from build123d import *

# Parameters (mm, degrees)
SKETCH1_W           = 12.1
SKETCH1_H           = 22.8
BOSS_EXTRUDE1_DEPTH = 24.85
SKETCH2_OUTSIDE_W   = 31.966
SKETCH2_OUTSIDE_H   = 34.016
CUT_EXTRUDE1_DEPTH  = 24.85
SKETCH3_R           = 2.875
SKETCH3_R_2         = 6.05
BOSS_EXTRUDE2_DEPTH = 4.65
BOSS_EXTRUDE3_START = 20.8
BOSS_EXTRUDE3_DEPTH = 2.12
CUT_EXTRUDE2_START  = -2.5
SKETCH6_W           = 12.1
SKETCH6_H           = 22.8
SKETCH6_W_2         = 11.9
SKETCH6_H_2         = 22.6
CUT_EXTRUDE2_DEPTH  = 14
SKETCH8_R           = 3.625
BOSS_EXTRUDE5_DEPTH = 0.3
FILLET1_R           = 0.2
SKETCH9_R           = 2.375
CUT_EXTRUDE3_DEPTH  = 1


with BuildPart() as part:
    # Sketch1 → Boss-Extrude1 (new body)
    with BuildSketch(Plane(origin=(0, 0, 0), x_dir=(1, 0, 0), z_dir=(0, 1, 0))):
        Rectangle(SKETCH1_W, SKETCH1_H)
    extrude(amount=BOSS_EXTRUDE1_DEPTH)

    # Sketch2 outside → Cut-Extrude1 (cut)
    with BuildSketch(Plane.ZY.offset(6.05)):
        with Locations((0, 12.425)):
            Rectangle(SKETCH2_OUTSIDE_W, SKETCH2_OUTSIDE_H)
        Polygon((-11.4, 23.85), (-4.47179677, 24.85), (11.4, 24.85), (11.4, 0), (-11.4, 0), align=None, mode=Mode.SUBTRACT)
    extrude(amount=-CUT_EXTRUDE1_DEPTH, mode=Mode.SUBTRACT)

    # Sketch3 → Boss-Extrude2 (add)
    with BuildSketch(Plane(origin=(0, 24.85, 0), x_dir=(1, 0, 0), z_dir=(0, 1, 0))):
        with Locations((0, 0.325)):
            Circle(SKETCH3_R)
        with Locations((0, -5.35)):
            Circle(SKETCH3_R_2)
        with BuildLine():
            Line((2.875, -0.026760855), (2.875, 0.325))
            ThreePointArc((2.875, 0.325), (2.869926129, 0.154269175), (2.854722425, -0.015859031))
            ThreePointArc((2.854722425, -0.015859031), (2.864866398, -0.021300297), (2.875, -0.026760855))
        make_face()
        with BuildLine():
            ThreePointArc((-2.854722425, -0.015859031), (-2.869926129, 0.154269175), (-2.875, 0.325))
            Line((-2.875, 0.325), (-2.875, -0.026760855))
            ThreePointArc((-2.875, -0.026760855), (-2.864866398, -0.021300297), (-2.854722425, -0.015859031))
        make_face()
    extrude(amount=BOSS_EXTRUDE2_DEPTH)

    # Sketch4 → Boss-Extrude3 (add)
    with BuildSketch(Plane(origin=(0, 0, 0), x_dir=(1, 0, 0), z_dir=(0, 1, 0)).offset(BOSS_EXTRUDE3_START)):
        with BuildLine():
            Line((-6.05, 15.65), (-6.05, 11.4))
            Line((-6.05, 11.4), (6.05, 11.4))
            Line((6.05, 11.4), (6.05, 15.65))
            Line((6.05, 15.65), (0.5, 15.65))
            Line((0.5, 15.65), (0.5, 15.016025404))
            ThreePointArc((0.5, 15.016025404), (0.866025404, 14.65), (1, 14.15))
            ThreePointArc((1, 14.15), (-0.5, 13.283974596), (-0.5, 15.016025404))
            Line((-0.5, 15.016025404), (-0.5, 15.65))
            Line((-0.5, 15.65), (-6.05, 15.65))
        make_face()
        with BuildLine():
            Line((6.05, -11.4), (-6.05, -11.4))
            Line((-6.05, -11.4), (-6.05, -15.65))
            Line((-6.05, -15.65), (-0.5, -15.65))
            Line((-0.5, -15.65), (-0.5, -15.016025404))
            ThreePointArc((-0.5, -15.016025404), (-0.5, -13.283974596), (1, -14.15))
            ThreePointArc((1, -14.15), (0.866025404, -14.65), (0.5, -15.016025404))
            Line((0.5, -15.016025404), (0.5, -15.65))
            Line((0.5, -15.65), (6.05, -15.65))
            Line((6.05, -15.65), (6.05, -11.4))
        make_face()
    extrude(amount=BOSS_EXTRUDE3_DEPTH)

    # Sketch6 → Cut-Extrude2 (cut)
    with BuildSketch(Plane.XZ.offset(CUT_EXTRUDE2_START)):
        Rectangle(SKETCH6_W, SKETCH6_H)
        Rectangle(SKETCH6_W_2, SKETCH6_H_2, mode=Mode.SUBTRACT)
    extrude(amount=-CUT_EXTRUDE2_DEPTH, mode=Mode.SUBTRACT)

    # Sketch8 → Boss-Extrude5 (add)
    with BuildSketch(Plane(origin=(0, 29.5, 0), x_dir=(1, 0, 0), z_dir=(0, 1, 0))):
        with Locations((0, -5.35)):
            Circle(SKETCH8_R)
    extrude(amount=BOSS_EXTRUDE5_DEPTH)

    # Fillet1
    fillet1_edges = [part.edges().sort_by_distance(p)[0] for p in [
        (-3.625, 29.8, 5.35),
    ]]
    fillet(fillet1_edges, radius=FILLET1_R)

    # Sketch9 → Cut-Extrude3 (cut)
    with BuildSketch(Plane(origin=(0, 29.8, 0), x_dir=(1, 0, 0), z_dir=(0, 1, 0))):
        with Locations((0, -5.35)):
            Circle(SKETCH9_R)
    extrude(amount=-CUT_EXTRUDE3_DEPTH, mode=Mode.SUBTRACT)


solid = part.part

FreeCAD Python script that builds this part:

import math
import FreeCAD as App
import Part
import Sketcher
from FreeCAD import Vector
Q = App.Units.Quantity


def edges_at(feature, points):
    """Names of the edges that pass closest to the given points."""
    edges = feature.Shape.Edges
    near = lambda p: min(range(len(edges)), key=lambda i: edges[i].distToShape(Part.Vertex(*p))[0])
    return sorted({f"Edge{near(p) + 1}" for p in points})

doc = App.newDocument("Part")
body = doc.addObject("PartDesign::Body", "Body")

# Sketch on XZ plane
sketch1 = body.newObject("Sketcher::SketchObject", "Sketch")
sketch1.AttachmentSupport = (doc.getObject("XZ_Plane"), [""])
sketch1.MapMode = "FlatFace"
sketch1.addGeometry(Part.LineSegment(Vector(-6, -11, 0), Vector(-6, 11, 0)), False)
sketch1.addGeometry(Part.LineSegment(Vector(-6, 11, 0), Vector(6, 11, 0)), False)
sketch1.addGeometry(Part.LineSegment(Vector(6, 11, 0), Vector(6, -11, 0)), False)
sketch1.addGeometry(Part.LineSegment(Vector(6, -11, 0), Vector(-6, -11, 0)), False)
sketch1.addConstraint(Sketcher.Constraint("Coincident", 0, 2, 1, 1))
sketch1.addConstraint(Sketcher.Constraint("Coincident", 1, 2, 2, 1))
sketch1.addConstraint(Sketcher.Constraint("Coincident", 2, 2, 3, 1))
sketch1.addConstraint(Sketcher.Constraint("Coincident", 3, 2, 0, 1))
sketch1.addConstraint(Sketcher.Constraint("Vertical", 0))
sketch1.addConstraint(Sketcher.Constraint("Horizontal", 1))
sketch1.addConstraint(Sketcher.Constraint("Vertical", 2))
sketch1.addConstraint(Sketcher.Constraint("Horizontal", 3))
sketch1.addConstraint(Sketcher.Constraint("Symmetric", 0, 2, 2, 2, -1, 1))
sketch1.addConstraint(Sketcher.Constraint("DistanceX", 1, 1, 1, 2, Q("12.1 mm")))
sketch1.addConstraint(Sketcher.Constraint("DistanceY", 0, 1, 0, 2, Q("22.8 mm")))
pad1 = body.newObject("PartDesign::Pad", "Pad")
pad1.Profile = sketch1
pad1.Length = 24.85
pad1.Reversed = True

# Sketch on YZ plane
sketch2 = body.newObject("Sketcher::SketchObject", "Sketch001")
sketch2.AttachmentSupport = (doc.getObject("YZ_Plane"), [""])
sketch2.MapMode = "FlatFace"
sketch2.AttachmentOffset = App.Placement(Vector(0, 0, -6.05), App.Rotation())
sketch2.addGeometry(Part.LineSegment(Vector(29, -16, 0), Vector(-5, -16, 0)), False)
sketch2.addGeometry(Part.LineSegment(Vector(-5, -16, 0), Vector(-5, 16, 0)), False)
sketch2.addGeometry(Part.LineSegment(Vector(-5, 16, 0), Vector(29, 16, 0)), False)
sketch2.addGeometry(Part.LineSegment(Vector(29, 16, 0), Vector(29, -16, 0)), False)
sketch2.addGeometry(Part.LineSegment(Vector(0, -11, 0), Vector(24, -11, 0)), False)
sketch2.addGeometry(Part.LineSegment(Vector(24, -11, 0), Vector(25, -4, 0)), False)
sketch2.addGeometry(Part.LineSegment(Vector(25, -4, 0), Vector(25, 11, 0)), False)
sketch2.addGeometry(Part.LineSegment(Vector(25, 11, 0), Vector(0, 11, 0)), False)
sketch2.addGeometry(Part.LineSegment(Vector(0, 11, 0), Vector(0, -11, 0)), False)
sketch2.addConstraint(Sketcher.Constraint("Coincident", 0, 2, 1, 1))
sketch2.addConstraint(Sketcher.Constraint("Coincident", 1, 2, 2, 1))
sketch2.addConstraint(Sketcher.Constraint("Coincident", 2, 2, 3, 1))
sketch2.addConstraint(Sketcher.Constraint("Coincident", 3, 2, 0, 1))
sketch2.addConstraint(Sketcher.Constraint("Coincident", 4, 2, 5, 1))
sketch2.addConstraint(Sketcher.Constraint("Coincident", 5, 2, 6, 1))
sketch2.addConstraint(Sketcher.Constraint("Coincident", 6, 2, 7, 1))
sketch2.addConstraint(Sketcher.Constraint("Coincident", 7, 2, 8, 1))
sketch2.addConstraint(Sketcher.Constraint("Coincident", 8, 2, 4, 1))
sketch2.addConstraint(Sketcher.Constraint("Horizontal", 0))
sketch2.addConstraint(Sketcher.Constraint("Vertical", 1))
sketch2.addConstraint(Sketcher.Constraint("Horizontal", 2))
sketch2.addConstraint(Sketcher.Constraint("Vertical", 3))
sketch2.addConstraint(Sketcher.Constraint("Horizontal", 4))
sketch2.addConstraint(Sketcher.Constraint("Vertical", 6))
sketch2.addConstraint(Sketcher.Constraint("Horizontal", 7))
sketch2.addConstraint(Sketcher.Constraint("Vertical", 8))
sketch2.addConstraint(Sketcher.Constraint("Symmetric", 7, 2, 8, 2, -1, 1))
sketch2.addConstraint(Sketcher.Constraint("Distance", 5, Q("7 mm")))
sketch2.addConstraint(Sketcher.Constraint("DistanceY", 8, 2, 8, 1, Q("22.8 mm")))
sketch2.addConstraint(Sketcher.Constraint("DistanceX", 4, 2, 5, 2, Q("1 mm")))
sketch2.addConstraint(Sketcher.Constraint("DistanceX", 4, 1, 4, 2, Q("23.85 mm")))
sketch2.addConstraint(Sketcher.Constraint("DistanceX", 0, 2, 0, 1, Q("34.016 mm")))
sketch2.addConstraint(Sketcher.Constraint("DistanceY", 1, 1, 1, 2, Q("31.966 mm")))
sketch2.addConstraint(Sketcher.Constraint("DistanceX", 0, 2, -1, 1, Q("4.583 mm")))
sketch2.addConstraint(Sketcher.Constraint("DistanceY", 0, 2, -1, 1, Q("15.983 mm")))
pocket1 = body.newObject("PartDesign::Pocket", "Pocket")
pocket1.Profile = sketch2
pocket1.Length = 24.85
pocket1.Reversed = True

# Sketch on XZ plane
sketch3 = body.newObject("Sketcher::SketchObject", "Sketch002")
sketch3.AttachmentSupport = (doc.getObject("XZ_Plane"), [""])
sketch3.MapMode = "FlatFace"
sketch3.AttachmentOffset = App.Placement(Vector(0, 0, -24.85), App.Rotation())
sketch3.addGeometry(Part.ArcOfCircle(Part.Circle(Vector(0, 5.35, 0), Vector(0, 0, 1), 6.05), math.radians(-62), math.radians(242)), False)
sketch3.addGeometry(Part.LineSegment(Vector(2.88, 0.03, 0), Vector(2.88, -0.33, 0)), False)
sketch3.addGeometry(Part.ArcOfCircle(Part.Circle(Vector(0, -0.33, 0), Vector(0, 0, 1), 2.88), math.radians(180), math.radians(360)), False)
sketch3.addGeometry(Part.LineSegment(Vector(-2.88, -0.33, 0), Vector(-2.88, 0.03, 0)), False)
sketch3.addConstraint(Sketcher.Constraint("Coincident", 0, 1, 1, 1))
sketch3.addConstraint(Sketcher.Constraint("Tangent", 1, 2, 2, 2))
sketch3.addConstraint(Sketcher.Constraint("Tangent", 2, 1, 3, 1))
sketch3.addConstraint(Sketcher.Constraint("Coincident", 3, 2, 0, 2))
sketch3.addConstraint(Sketcher.Constraint("Vertical", 1))
sketch3.addConstraint(Sketcher.Constraint("Vertical", 3))
sketch3.addConstraint(Sketcher.Constraint("Symmetric", 0, 1, 3, 2, -2))
sketch3.addConstraint(Sketcher.Constraint("Radius", 0, Q("6.05 mm")))
sketch3.addConstraint(Sketcher.Constraint("Radius", 2, Q("2.875 mm")))
sketch3.addConstraint(Sketcher.Constraint("DistanceY", -1, 1, 0, 3, Q("5.35 mm")))
sketch3.addConstraint(Sketcher.Constraint("DistanceY", 2, 3, -1, 1, Q("0.325 mm")))
pad2 = body.newObject("PartDesign::Pad", "Pad001")
pad2.Profile = sketch3
pad2.Length = 4.65
pad2.Reversed = True

# Sketch on XZ plane
sketch4 = body.newObject("Sketcher::SketchObject", "Sketch003")
sketch4.AttachmentSupport = (doc.getObject("XZ_Plane"), [""])
sketch4.MapMode = "FlatFace"
sketch4.AttachmentOffset = App.Placement(Vector(0, 0, -20.8), App.Rotation())
sketch4.addGeometry(Part.LineSegment(Vector(-6, -15.7, 0), Vector(-6, -11.4, 0)), False)
sketch4.addGeometry(Part.LineSegment(Vector(-6, -11.4, 0), Vector(6, -11.4, 0)), False)
sketch4.addGeometry(Part.LineSegment(Vector(6, -11.4, 0), Vector(6, -15.7, 0)), False)
sketch4.addGeometry(Part.LineSegment(Vector(6, -15.7, 0), Vector(0.5, -15.7, 0)), False)
sketch4.addGeometry(Part.LineSegment(Vector(0.5, -15.7, 0), Vector(0.5, -15, 0)), False)
sketch4.addGeometry(Part.ArcOfCircle(Part.Circle(Vector(0, -14.2, 0), Vector(0, 0, 1), 1), math.radians(-60), math.radians(0)), False)
sketch4.addGeometry(Part.ArcOfCircle(Part.Circle(Vector(0, -14.2, 0), Vector(0, 0, 1), 1), math.radians(0), math.radians(240)), False)
sketch4.addGeometry(Part.LineSegment(Vector(-0.5, -15, 0), Vector(-0.5, -15.7, 0)), False)
sketch4.addGeometry(Part.LineSegment(Vector(-0.5, -15.7, 0), Vector(-6, -15.7, 0)), False)
sketch4.addGeometry(Part.LineSegment(Vector(6, 11.4, 0), Vector(-6, 11.4, 0)), False)
sketch4.addGeometry(Part.LineSegment(Vector(-6, 11.4, 0), Vector(-6, 15.7, 0)), False)
sketch4.addGeometry(Part.LineSegment(Vector(-6, 15.7, 0), Vector(-0.5, 15.7, 0)), False)
sketch4.addGeometry(Part.LineSegment(Vector(-0.5, 15.7, 0), Vector(-0.5, 15, 0)), False)
sketch4.addGeometry(Part.ArcOfCircle(Part.Circle(Vector(0, 14.2, 0), Vector(0, 0, 1), 1), math.radians(120), math.radians(360)), False)
sketch4.addGeometry(Part.ArcOfCircle(Part.Circle(Vector(0, 14.2, 0), Vector(0, 0, 1), 1), math.radians(0), math.radians(60)), False)
sketch4.addGeometry(Part.LineSegment(Vector(0.5, 15, 0), Vector(0.5, 15.7, 0)), False)
sketch4.addGeometry(Part.LineSegment(Vector(0.5, 15.7, 0), Vector(6, 15.7, 0)), False)
sketch4.addGeometry(Part.LineSegment(Vector(6, 15.7, 0), Vector(6, 11.4, 0)), False)
sketch4.addConstraint(Sketcher.Constraint("Coincident", 0, 2, 1, 1))
sketch4.addConstraint(Sketcher.Constraint("Coincident", 1, 2, 2, 1))
sketch4.addConstraint(Sketcher.Constraint("Coincident", 2, 2, 3, 1))
sketch4.addConstraint(Sketcher.Constraint("Coincident", 3, 2, 4, 1))
sketch4.addConstraint(Sketcher.Constraint("Coincident", 4, 2, 5, 1))
sketch4.addConstraint(Sketcher.Constraint("Tangent", 5, 2, 6, 1))
sketch4.addConstraint(Sketcher.Constraint("Coincident", 6, 2, 7, 1))
sketch4.addConstraint(Sketcher.Constraint("Coincident", 7, 2, 8, 1))
sketch4.addConstraint(Sketcher.Constraint("Coincident", 8, 2, 0, 1))
sketch4.addConstraint(Sketcher.Constraint("Coincident", 9, 2, 10, 1))
sketch4.addConstraint(Sketcher.Constraint("Coincident", 10, 2, 11, 1))
sketch4.addConstraint(Sketcher.Constraint("Coincident", 11, 2, 12, 1))
sketch4.addConstraint(Sketcher.Constraint("Coincident", 12, 2, 13, 1))
sketch4.addConstraint(Sketcher.Constraint("Tangent", 13, 2, 14, 1))
sketch4.addConstraint(Sketcher.Constraint("Coincident", 14, 2, 15, 1))
sketch4.addConstraint(Sketcher.Constraint("Coincident", 15, 2, 16, 1))
sketch4.addConstraint(Sketcher.Constraint("Coincident", 16, 2, 17, 1))
sketch4.addConstraint(Sketcher.Constraint("Coincident", 17, 2, 9, 1))
sketch4.addConstraint(Sketcher.Constraint("Vertical", 0))
sketch4.addConstraint(Sketcher.Constraint("Horizontal", 1))
sketch4.addConstraint(Sketcher.Constraint("Vertical", 2))
sketch4.addConstraint(Sketcher.Constraint("Horizontal", 3))
sketch4.addConstraint(Sketcher.Constraint("Vertical", 4))
sketch4.addConstraint(Sketcher.Constraint("Vertical", 7))
sketch4.addConstraint(Sketcher.Constraint("Horizontal", 8))
sketch4.addConstraint(Sketcher.Constraint("Horizontal", 9))
sketch4.addConstraint(Sketcher.Constraint("Vertical", 10))
sketch4.addConstraint(Sketcher.Constraint("Horizontal", 11))
sketch4.addConstraint(Sketcher.Constraint("Vertical", 12))
sketch4.addConstraint(Sketcher.Constraint("Vertical", 15))
sketch4.addConstraint(Sketcher.Constraint("Horizontal", 16))
sketch4.addConstraint(Sketcher.Constraint("Vertical", 17))
sketch4.addConstraint(Sketcher.Constraint("Equal", 5, 6))
sketch4.addConstraint(Sketcher.Constraint("Equal", 6, 13))
sketch4.addConstraint(Sketcher.Constraint("Equal", 13, 14))
sketch4.addConstraint(Sketcher.Constraint("Symmetric", 5, 3, 13, 3, -1, 1))
sketch4.addConstraint(Sketcher.Constraint("Symmetric", 1, 2, 9, 2, -1, 1))
sketch4.addConstraint(Sketcher.Constraint("Symmetric", 3, 2, 11, 2, -1, 1))
sketch4.addConstraint(Sketcher.Constraint("Symmetric", 7, 2, 15, 2, -1, 1))
sketch4.addConstraint(Sketcher.Constraint("Symmetric", 4, 2, 6, 2, -2))
sketch4.addConstraint(Sketcher.Constraint("Symmetric", 2, 2, 8, 2, -2))
sketch4.addConstraint(Sketcher.Constraint("Horizontal", 6, 3, 5, 2))
sketch4.addConstraint(Sketcher.Constraint("Horizontal", 14, 3, 13, 2))
sketch4.addConstraint(Sketcher.Constraint("Vertical", 2, 2, 16, 2))
sketch4.addConstraint(Sketcher.Constraint("Radius", 5, Q("1 mm")))
sketch4.addConstraint(Sketcher.Constraint("DistanceX", 1, 1, 1, 2, Q("12.1 mm")))
sketch4.addConstraint(Sketcher.Constraint("DistanceX", 6, 2, 4, 2, Q("1 mm")))
sketch4.addConstraint(Sketcher.Constraint("DistanceY", 0, 1, 0, 2, Q("4.25 mm")))
sketch4.addConstraint(Sketcher.Constraint("DistanceY", 0, 2, -1, 1, Q("11.4 mm")))
sketch4.addConstraint(Sketcher.Constraint("DistanceY", 6, 3, 13, 3, Q("28.3 mm")))
pad3 = body.newObject("PartDesign::Pad", "Pad002")
pad3.Profile = sketch4
pad3.Length = 2.12
pad3.Reversed = True

# Sketch on XZ plane
sketch5 = body.newObject("Sketcher::SketchObject", "Sketch004")
sketch5.AttachmentSupport = (doc.getObject("XZ_Plane"), [""])
sketch5.MapMode = "FlatFace"
sketch5.AttachmentOffset = App.Placement(Vector(0, 0, -2.5), App.Rotation())
sketch5.addGeometry(Part.LineSegment(Vector(-6, 11, 0), Vector(-6, -11, 0)), False)
sketch5.addGeometry(Part.LineSegment(Vector(-6, -11, 0), Vector(6, -11, 0)), False)
sketch5.addGeometry(Part.LineSegment(Vector(6, -11, 0), Vector(6, 11, 0)), False)
sketch5.addGeometry(Part.LineSegment(Vector(6, 11, 0), Vector(-6, 11, 0)), False)
sketch5.addGeometry(Part.LineSegment(Vector(6, -11, 0), Vector(-6, -11, 0)), False)
sketch5.addGeometry(Part.LineSegment(Vector(-6, -11, 0), Vector(-6, 11, 0)), False)
sketch5.addGeometry(Part.LineSegment(Vector(-6, 11, 0), Vector(6, 11, 0)), False)
sketch5.addGeometry(Part.LineSegment(Vector(6, 11, 0), Vector(6, -11, 0)), False)
sketch5.addConstraint(Sketcher.Constraint("Coincident", 0, 2, 1, 1))
sketch5.addConstraint(Sketcher.Constraint("Coincident", 1, 2, 2, 1))
sketch5.addConstraint(Sketcher.Constraint("Coincident", 2, 2, 3, 1))
sketch5.addConstraint(Sketcher.Constraint("Coincident", 3, 2, 0, 1))
sketch5.addConstraint(Sketcher.Constraint("Coincident", 4, 2, 5, 1))
sketch5.addConstraint(Sketcher.Constraint("Coincident", 5, 2, 6, 1))
sketch5.addConstraint(Sketcher.Constraint("Coincident", 6, 2, 7, 1))
sketch5.addConstraint(Sketcher.Constraint("Coincident", 7, 2, 4, 1))
sketch5.addConstraint(Sketcher.Constraint("Vertical", 0))
sketch5.addConstraint(Sketcher.Constraint("Horizontal", 1))
sketch5.addConstraint(Sketcher.Constraint("Vertical", 2))
sketch5.addConstraint(Sketcher.Constraint("Horizontal", 3))
sketch5.addConstraint(Sketcher.Constraint("Horizontal", 4))
sketch5.addConstraint(Sketcher.Constraint("Vertical", 5))
sketch5.addConstraint(Sketcher.Constraint("Horizontal", 6))
sketch5.addConstraint(Sketcher.Constraint("Vertical", 7))
sketch5.addConstraint(Sketcher.Constraint("Symmetric", 0, 2, 2, 2, -1, 1))
sketch5.addConstraint(Sketcher.Constraint("Symmetric", 4, 2, 6, 2, -1, 1))
sketch5.addConstraint(Sketcher.Constraint("DistanceX", 1, 1, 1, 2, Q("12.1 mm")))
sketch5.addConstraint(Sketcher.Constraint("DistanceX", 4, 2, 4, 1, Q("11.9 mm")))
sketch5.addConstraint(Sketcher.Constraint("DistanceY", 0, 2, 0, 1, Q("22.8 mm")))
sketch5.addConstraint(Sketcher.Constraint("DistanceY", 5, 1, 5, 2, Q("22.6 mm")))
pocket2 = body.newObject("PartDesign::Pocket", "Pocket001")
pocket2.Profile = sketch5
pocket2.Length = 14

# Sketch on XZ plane
sketch6 = body.newObject("Sketcher::SketchObject", "Sketch005")
sketch6.AttachmentSupport = (doc.getObject("XZ_Plane"), [""])
sketch6.MapMode = "FlatFace"
sketch6.AttachmentOffset = App.Placement(Vector(0, 0, -29.5), App.Rotation())
sketch6.addGeometry(Part.Circle(Vector(0, 5.3, 0), Vector(0, 0, 1), 3.6), False)
sketch6.addConstraint(Sketcher.Constraint("PointOnObject", 0, 3, -2))
sketch6.addConstraint(Sketcher.Constraint("Diameter", 0, Q("7.25 mm")))
sketch6.addConstraint(Sketcher.Constraint("DistanceY", -1, 1, 0, 3, Q("5.35 mm")))
pad4 = body.newObject("PartDesign::Pad", "Pad003")
pad4.Profile = sketch6
pad4.Length = 0.3
pad4.Reversed = True
doc.recompute()

fillet = body.newObject("PartDesign::Fillet", "Fillet")
fillet.Base = (pad4, edges_at(pad4, [(-3.625, 29.8, 5.35)]))
fillet.Radius = 0.2

# Sketch on XZ plane
sketch7 = body.newObject("Sketcher::SketchObject", "Sketch006")
sketch7.AttachmentSupport = (doc.getObject("XZ_Plane"), [""])
sketch7.MapMode = "FlatFace"
sketch7.AttachmentOffset = App.Placement(Vector(0, 0, -29.8), App.Rotation())
sketch7.addGeometry(Part.Circle(Vector(0, 5.3, 0), Vector(0, 0, 1), 2.4), False)
sketch7.addConstraint(Sketcher.Constraint("PointOnObject", 0, 3, -2))
sketch7.addConstraint(Sketcher.Constraint("Diameter", 0, Q("4.75 mm")))
sketch7.addConstraint(Sketcher.Constraint("DistanceY", -1, 1, 0, 3, Q("5.35 mm")))
pocket3 = body.newObject("PartDesign::Pocket", "Pocket002")
pocket3.Profile = sketch7
pocket3.Length = 1
pocket3.Reversed = True

doc.recompute()
